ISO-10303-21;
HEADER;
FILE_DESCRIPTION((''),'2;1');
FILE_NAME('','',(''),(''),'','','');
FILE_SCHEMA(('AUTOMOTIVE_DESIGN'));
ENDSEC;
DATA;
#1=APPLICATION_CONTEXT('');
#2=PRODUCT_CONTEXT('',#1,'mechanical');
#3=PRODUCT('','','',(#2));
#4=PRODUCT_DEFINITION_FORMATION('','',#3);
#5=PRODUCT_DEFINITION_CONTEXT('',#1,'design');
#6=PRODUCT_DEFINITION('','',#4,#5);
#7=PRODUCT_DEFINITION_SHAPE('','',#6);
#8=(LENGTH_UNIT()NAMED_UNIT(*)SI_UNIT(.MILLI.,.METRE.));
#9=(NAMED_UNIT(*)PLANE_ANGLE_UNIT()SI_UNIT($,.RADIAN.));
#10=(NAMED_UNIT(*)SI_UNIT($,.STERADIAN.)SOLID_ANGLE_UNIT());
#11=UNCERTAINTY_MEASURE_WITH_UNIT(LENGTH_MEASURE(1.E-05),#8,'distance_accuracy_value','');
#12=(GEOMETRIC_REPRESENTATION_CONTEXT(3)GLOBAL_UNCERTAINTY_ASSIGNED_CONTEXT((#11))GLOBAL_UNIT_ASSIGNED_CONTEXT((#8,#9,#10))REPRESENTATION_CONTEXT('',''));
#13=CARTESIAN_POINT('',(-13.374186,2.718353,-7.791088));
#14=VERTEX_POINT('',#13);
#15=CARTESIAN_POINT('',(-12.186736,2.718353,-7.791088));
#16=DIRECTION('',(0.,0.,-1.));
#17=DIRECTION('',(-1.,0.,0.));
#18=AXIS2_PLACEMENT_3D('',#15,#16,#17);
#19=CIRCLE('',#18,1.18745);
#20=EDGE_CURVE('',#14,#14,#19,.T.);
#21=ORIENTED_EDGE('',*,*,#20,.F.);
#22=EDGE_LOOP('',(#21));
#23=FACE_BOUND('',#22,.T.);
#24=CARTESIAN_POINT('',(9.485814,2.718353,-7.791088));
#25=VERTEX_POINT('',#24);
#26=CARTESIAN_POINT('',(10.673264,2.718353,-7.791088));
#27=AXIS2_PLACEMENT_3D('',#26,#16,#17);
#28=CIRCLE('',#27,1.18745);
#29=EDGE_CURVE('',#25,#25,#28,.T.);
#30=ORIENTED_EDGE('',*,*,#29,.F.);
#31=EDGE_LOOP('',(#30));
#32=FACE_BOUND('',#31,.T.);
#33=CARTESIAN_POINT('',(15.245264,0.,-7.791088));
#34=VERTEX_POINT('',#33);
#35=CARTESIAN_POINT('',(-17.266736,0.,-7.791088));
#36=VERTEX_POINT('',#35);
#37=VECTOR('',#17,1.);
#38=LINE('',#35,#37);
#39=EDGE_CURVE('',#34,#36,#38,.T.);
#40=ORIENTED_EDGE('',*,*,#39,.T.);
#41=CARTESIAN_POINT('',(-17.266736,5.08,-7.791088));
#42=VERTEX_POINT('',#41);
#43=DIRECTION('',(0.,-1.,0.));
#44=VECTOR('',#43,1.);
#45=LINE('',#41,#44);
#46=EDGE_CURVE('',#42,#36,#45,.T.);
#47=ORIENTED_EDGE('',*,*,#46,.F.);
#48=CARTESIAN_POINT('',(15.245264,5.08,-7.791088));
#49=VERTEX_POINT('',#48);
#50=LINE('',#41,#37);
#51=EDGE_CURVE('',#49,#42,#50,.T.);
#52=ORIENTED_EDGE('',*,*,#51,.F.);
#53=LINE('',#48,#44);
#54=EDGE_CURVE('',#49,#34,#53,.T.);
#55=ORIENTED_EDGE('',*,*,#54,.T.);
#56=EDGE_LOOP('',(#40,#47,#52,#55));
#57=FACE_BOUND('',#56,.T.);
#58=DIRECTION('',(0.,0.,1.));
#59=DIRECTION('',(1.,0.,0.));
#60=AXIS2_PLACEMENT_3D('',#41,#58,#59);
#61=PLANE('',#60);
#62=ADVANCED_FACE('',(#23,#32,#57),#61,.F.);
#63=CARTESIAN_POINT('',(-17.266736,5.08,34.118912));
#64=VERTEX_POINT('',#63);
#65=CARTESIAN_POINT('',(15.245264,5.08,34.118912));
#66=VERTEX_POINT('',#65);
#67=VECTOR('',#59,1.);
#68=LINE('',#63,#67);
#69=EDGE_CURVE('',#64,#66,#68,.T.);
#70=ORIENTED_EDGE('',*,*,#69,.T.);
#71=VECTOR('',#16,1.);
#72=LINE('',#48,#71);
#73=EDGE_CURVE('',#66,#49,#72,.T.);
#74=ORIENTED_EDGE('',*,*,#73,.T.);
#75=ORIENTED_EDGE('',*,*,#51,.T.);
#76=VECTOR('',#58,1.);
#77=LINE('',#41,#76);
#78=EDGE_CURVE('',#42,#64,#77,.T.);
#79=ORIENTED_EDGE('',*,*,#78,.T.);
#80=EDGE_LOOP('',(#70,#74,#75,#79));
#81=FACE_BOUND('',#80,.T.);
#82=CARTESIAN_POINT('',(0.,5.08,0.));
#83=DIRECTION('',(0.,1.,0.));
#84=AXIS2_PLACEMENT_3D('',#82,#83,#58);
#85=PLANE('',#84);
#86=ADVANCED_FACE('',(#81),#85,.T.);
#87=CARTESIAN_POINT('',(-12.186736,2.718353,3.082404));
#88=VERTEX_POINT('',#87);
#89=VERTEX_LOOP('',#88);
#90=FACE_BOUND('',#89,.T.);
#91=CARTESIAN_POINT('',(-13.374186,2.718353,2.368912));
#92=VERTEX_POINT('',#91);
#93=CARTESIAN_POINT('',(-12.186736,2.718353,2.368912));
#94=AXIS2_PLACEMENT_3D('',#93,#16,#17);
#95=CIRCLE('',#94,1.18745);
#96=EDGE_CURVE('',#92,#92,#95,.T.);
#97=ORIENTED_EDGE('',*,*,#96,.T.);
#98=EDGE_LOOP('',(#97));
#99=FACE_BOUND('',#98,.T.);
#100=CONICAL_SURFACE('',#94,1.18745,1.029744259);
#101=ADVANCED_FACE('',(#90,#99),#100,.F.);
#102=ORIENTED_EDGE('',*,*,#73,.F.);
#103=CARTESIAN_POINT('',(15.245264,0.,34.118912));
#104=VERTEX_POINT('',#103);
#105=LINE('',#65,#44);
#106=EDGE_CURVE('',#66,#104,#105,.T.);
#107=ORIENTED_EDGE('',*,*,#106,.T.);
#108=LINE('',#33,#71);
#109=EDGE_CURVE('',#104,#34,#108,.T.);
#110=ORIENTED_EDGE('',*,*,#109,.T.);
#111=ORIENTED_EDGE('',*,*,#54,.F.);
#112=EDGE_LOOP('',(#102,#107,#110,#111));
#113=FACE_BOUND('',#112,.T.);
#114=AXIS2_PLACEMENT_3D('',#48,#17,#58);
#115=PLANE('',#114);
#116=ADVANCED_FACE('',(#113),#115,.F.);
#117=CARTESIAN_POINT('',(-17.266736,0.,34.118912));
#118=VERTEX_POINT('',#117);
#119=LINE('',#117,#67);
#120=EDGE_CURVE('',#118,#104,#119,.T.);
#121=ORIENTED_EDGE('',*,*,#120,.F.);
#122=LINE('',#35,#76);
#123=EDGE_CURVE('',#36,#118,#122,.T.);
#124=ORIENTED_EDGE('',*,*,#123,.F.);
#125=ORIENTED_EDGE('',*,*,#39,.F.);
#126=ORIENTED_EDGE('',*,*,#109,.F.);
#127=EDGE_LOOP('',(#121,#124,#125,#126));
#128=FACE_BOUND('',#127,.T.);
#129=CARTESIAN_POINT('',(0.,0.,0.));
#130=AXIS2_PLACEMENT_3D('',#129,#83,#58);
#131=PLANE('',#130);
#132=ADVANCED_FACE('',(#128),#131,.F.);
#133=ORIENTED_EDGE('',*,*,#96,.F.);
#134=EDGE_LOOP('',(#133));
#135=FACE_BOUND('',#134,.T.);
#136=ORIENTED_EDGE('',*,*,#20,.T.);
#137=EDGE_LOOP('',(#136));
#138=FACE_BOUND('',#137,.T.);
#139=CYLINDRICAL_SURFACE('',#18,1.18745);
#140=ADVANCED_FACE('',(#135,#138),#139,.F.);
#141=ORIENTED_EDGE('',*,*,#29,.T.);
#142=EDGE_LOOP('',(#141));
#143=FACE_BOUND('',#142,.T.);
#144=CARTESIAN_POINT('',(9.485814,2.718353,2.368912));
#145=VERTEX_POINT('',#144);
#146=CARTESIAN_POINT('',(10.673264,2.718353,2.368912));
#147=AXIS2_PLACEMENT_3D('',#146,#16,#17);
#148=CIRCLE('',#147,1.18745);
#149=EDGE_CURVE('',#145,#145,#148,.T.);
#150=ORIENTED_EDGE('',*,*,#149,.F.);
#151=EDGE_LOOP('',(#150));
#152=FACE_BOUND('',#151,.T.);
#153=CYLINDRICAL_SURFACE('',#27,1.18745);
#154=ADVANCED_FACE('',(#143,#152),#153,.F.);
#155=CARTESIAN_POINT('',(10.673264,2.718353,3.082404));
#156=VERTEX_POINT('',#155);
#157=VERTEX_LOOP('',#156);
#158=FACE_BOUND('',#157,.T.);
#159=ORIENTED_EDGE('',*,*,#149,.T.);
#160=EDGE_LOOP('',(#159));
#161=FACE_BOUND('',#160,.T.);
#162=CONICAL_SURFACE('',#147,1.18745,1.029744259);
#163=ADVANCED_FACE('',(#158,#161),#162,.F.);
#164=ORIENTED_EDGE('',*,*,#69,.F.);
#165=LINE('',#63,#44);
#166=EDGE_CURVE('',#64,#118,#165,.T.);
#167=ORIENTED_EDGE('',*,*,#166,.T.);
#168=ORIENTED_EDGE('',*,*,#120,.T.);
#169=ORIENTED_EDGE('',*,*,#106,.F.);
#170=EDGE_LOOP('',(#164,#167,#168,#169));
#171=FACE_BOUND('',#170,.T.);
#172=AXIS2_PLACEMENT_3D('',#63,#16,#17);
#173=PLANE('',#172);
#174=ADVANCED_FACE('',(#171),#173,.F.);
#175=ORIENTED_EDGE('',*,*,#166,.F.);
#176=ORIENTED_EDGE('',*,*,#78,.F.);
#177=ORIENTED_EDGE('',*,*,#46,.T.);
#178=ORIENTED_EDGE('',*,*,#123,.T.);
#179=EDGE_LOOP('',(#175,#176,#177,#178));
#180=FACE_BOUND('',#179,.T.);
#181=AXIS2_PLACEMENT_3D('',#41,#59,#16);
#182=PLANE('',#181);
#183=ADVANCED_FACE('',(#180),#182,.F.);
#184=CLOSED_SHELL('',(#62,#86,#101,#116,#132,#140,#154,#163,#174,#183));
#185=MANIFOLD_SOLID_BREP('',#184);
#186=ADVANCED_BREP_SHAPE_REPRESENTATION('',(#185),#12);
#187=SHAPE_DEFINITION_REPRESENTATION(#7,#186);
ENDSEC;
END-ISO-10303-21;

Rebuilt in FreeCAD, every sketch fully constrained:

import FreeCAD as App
import Part
import Sketcher
Q = App.Units.Quantity


def add_polygon(sketch, points):
    """Adds a closed chain of lines whose ends are joined by coincident constraints."""
    first, n = sketch.GeometryCount, len(points)
    for a, b in zip(points, points[1:] + points[:1]):
        sketch.addGeometry(Part.LineSegment(App.Vector(*a, 0), App.Vector(*b, 0)), False)
    for i in range(n):
        sketch.addConstraint(Sketcher.Constraint("Coincident", first + i, 2, first + (i + 1) % n, 1))

doc = App.newDocument("Part")
body = doc.addObject("PartDesign::Body", "Body")

sketch1 = body.newObject("Sketcher::SketchObject", "Sketch")
sketch1.AttachmentSupport = (doc.getObject("XZ_Plane"), [""])
sketch1.MapMode = "FlatFace"
add_polygon(sketch1, [(-17, -8), (-17, 34), (15, 34), (15, -8)])
sketch1.addConstraint([
    Sketcher.Constraint("Vertical", 0),
    Sketcher.Constraint("Horizontal", 1),
    Sketcher.Constraint("Vertical", 2),
    Sketcher.Constraint("Horizontal", 3),
    Sketcher.Constraint("DistanceX", 1, 1, 1, 2, Q("1.28 in")),
    Sketcher.Constraint("DistanceY", 0, 1, 0, 2, Q("1.65 in")),
    Sketcher.Constraint("DistanceY", -1, 1, 0, 2, 34.118912),
    Sketcher.Constraint("DistanceX", 0, 2, -1, 1, 17.266736),
])
pad1 = body.newObject("PartDesign::Pad", "Pad")
pad1.Profile = sketch1
pad1.Length = Q("0.2 in")
pad1.Reversed = True

sketch2 = body.newObject("Sketcher::SketchObject", "Sketch001")
sketch2.AttachmentSupport = (doc.getObject("XY_Plane"), [""])
sketch2.MapMode = "FlatFace"
sketch2.AttachmentOffset = App.Placement(App.Vector(0, 0, -7.791088), App.Rotation())
sketch2.addGeometry([
    Part.Circle(App.Vector(-12.2, 2.7, 0), App.Vector(0, 0, 1), 1.2),
    Part.Circle(App.Vector(10.7, 2.7, 0), App.Vector(0, 0, 1), 1.2),
], False)
sketch2.addConstraint([
    Sketcher.Constraint("Equal", 0, 1),
    Sketcher.Constraint("Horizontal", 0, 3, 1, 3),
    Sketcher.Constraint("Diameter", 0, Q("0.0935 in")),
    Sketcher.Constraint("DistanceX", 0, 3, 1, 3, Q("0.9 in")),
    Sketcher.Constraint("DistanceX", 0, 3, -1, 1, 12.186736),
    Sketcher.Constraint("DistanceY", -1, 1, 0, 3, 2.718353),
])
doc.recompute()
hole = body.newObject("PartDesign::Hole", "Hole")
hole.Profile = sketch2
hole.ThreadType = "None"
hole.Diameter = Q("0.0935 in")
hole.DepthType = "Dimension"
hole.Depth = Q("0.4 in")
hole.DrillPoint = "Angled"
hole.DrillPointAngle = 118
hole.Reversed = True

doc.recompute()
